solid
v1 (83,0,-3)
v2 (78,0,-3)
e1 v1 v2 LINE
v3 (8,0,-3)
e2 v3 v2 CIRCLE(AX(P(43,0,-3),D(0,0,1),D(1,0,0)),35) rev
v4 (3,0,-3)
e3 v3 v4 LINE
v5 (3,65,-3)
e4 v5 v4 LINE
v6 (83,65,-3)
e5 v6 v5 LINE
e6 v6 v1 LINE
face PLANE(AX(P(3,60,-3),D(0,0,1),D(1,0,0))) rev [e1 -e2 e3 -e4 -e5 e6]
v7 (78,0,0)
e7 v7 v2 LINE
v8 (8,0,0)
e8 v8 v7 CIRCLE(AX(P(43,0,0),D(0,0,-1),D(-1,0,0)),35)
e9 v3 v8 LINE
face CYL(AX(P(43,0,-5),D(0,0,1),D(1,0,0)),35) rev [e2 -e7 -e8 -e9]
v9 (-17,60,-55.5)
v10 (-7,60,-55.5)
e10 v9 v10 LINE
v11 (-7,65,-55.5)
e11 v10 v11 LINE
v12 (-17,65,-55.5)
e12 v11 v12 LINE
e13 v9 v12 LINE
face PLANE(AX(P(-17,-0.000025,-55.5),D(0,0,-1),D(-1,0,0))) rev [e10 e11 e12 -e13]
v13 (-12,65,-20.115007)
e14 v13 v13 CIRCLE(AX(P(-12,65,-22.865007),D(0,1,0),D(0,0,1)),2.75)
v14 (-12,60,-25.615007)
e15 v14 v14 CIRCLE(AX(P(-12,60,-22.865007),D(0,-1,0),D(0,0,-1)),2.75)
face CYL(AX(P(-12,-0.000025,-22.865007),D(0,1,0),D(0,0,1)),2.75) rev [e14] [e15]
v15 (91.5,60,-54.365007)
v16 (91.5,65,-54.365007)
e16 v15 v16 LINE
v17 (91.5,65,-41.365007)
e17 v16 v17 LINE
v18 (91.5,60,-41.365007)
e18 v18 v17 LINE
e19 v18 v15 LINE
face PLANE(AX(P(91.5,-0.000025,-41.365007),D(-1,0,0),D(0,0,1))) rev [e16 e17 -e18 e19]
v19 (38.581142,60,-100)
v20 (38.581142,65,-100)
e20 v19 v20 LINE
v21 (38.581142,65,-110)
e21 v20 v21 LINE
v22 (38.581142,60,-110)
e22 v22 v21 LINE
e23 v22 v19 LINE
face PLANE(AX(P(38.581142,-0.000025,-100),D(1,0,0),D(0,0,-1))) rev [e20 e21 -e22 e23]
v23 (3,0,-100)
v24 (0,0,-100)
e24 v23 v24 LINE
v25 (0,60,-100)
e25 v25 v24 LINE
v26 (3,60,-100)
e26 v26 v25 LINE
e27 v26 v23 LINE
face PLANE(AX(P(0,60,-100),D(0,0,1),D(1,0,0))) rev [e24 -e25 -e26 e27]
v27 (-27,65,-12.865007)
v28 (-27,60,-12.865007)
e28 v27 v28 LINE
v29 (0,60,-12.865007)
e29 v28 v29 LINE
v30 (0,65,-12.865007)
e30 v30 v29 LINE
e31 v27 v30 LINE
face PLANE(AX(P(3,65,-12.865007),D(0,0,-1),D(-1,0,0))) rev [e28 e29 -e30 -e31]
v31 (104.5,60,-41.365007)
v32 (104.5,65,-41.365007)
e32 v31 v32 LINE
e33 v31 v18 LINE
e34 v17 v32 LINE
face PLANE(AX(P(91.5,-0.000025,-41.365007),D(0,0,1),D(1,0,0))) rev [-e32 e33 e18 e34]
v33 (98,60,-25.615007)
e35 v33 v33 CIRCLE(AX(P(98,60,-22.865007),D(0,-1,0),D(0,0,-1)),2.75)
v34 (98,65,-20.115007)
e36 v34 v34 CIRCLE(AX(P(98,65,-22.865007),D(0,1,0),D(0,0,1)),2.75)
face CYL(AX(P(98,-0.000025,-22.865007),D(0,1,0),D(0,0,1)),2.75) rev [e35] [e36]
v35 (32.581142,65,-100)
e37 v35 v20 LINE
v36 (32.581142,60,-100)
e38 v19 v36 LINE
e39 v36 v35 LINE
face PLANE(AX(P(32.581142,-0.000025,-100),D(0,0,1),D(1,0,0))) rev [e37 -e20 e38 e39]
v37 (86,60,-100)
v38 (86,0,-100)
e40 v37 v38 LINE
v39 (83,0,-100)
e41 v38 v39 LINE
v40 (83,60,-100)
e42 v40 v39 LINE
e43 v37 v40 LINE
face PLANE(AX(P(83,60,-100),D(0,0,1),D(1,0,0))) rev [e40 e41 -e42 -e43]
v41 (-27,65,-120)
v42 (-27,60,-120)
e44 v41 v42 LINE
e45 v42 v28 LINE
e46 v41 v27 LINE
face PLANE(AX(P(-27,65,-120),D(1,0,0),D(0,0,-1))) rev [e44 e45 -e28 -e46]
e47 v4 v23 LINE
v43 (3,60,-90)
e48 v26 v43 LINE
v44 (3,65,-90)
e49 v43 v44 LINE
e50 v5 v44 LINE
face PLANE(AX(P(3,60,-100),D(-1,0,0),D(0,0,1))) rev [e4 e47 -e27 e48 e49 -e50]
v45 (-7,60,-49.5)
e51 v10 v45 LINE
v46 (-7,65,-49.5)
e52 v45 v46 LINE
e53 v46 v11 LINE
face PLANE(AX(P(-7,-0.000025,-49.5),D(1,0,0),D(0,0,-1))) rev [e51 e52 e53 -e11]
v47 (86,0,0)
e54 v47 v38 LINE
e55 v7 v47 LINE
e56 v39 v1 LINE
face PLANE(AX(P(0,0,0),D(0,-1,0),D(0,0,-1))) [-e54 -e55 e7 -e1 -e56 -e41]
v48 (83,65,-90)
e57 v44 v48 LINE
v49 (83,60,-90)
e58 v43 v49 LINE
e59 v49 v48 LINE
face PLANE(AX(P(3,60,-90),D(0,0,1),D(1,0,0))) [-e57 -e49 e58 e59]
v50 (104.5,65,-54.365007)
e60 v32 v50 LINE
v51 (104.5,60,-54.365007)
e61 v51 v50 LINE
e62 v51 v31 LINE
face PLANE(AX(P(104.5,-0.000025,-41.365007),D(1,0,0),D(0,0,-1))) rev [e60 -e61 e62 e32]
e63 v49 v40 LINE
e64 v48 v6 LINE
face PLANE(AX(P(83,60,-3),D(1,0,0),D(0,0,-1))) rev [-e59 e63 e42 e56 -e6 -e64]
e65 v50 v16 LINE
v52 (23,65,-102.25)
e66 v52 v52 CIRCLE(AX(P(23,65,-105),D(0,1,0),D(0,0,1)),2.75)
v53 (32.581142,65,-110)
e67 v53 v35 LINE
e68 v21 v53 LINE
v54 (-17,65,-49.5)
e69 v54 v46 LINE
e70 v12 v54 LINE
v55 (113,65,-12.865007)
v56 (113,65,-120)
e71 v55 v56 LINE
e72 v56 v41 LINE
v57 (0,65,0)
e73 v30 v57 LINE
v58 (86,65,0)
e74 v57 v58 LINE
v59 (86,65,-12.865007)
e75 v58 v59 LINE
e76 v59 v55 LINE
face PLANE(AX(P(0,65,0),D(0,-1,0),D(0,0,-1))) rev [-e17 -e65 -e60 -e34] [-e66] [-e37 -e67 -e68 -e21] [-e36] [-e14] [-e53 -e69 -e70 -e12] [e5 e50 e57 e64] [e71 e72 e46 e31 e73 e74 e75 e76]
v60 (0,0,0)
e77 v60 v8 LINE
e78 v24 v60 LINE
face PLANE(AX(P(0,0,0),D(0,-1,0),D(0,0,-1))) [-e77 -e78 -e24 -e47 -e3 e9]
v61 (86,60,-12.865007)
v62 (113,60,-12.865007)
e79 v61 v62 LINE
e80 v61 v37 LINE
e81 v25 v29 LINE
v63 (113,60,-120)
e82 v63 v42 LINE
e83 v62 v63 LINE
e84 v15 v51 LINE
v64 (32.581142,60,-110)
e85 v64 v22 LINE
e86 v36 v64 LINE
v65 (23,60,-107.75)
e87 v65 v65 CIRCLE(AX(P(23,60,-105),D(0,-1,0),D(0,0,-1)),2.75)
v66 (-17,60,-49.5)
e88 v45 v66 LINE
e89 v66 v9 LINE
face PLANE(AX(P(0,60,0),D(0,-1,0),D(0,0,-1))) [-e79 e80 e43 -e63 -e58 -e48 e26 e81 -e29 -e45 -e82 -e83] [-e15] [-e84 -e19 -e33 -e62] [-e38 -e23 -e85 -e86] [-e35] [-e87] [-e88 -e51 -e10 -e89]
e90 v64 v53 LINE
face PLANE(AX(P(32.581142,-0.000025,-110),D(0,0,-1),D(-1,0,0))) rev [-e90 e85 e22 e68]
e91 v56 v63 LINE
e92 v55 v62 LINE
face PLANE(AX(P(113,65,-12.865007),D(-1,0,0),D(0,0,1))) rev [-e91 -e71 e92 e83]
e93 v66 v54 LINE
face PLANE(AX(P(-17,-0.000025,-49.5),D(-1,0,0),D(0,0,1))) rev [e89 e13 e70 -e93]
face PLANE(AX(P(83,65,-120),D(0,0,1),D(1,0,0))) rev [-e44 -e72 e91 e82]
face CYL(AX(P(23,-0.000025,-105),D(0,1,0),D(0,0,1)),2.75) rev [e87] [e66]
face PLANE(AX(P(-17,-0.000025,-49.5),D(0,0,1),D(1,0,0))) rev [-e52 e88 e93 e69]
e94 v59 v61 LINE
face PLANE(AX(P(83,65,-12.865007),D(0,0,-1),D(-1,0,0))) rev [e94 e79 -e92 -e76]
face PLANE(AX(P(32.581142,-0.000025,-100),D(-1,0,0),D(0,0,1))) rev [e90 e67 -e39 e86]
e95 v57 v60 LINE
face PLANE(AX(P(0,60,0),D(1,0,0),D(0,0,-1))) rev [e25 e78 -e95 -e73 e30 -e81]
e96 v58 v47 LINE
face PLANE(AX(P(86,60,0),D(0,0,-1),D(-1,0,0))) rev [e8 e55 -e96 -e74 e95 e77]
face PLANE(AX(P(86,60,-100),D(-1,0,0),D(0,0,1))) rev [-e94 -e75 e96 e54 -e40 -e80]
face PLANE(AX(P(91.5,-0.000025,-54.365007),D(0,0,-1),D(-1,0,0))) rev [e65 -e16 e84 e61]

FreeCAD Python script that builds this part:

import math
import FreeCAD as App
import Part
import Sketcher

V = App.Vector


def add_polygon(sketch, points):
    """Adds a closed chain of lines whose ends are joined by coincident constraints."""
    first, n = sketch.GeometryCount, len(points)
    for a, b in zip(points, points[1:] + points[:1]):
        sketch.addGeometry(Part.LineSegment(App.Vector(*a, 0), App.Vector(*b, 0)), False)
    for i in range(n):
        sketch.addConstraint(Sketcher.Constraint("Coincident", first + i, 2, first + (i + 1) % n, 1))

doc = App.newDocument("Part")
body = doc.addObject("PartDesign::Body", "Body")

# Sketch on XZ plane
sketch1 = body.newObject("Sketcher::SketchObject", "Sketch")
sketch1.AttachmentSupport = (doc.getObject("XZ_Plane"), [""])
sketch1.MapMode = "FlatFace"
add_polygon(sketch1, [(0, -100), (0, 0), (86, 0), (86, -100), (83, -100), (83, -3), (3, -3), (3, -100)])  # lines 0-7
sketch1.addConstraint([
    Sketcher.Constraint("Vertical", 0),
    Sketcher.Constraint("Horizontal", 1),
    Sketcher.Constraint("Vertical", 2),
    Sketcher.Constraint("Horizontal", 3),
    Sketcher.Constraint("Vertical", 4),
    Sketcher.Constraint("Horizontal", 5),
    Sketcher.Constraint("Vertical", 6),
    Sketcher.Constraint("Horizontal", 7),
    Sketcher.Constraint("Coincident", 0, 2, -1, 1),
    Sketcher.Constraint("Horizontal", 3, 2, 6, 2),
    Sketcher.Constraint("Equal", 3, 7),
    Sketcher.Constraint("DistanceX", 1, 1, 1, 2, 86.0),
    Sketcher.Constraint("DistanceX", 3, 2, 3, 1, 3.0),
    Sketcher.Constraint("DistanceY", 0, 1, 0, 2, 100.0),
    Sketcher.Constraint("DistanceY", 4, 1, 4, 2, 97.0),
])
pad1 = body.newObject("PartDesign::Pad", "Pad")
pad1.Profile = sketch1
pad1.Length = 60
pad1.Reversed = True

# Sketch on XZ plane
sketch2 = body.newObject("Sketcher::SketchObject", "Sketch001")
sketch2.AttachmentSupport = (doc.getObject("XZ_Plane"), [""])
sketch2.MapMode = "FlatFace"
sketch2.AttachmentOffset = App.Placement(V(0, 0, -60), App.Rotation())
add_polygon(sketch2, [(83, -120), (83, -13), (113, -13), (113, -120)])  # lines 0-3
add_polygon(sketch2, [(-27, -120), (-27, -13), (3, -13), (3, -120)])  # lines 4-7
sketch2.addConstraint([
    Sketcher.Constraint("Vertical", 0),
    Sketcher.Constraint("Horizontal", 1),
    Sketcher.Constraint("Vertical", 2),
    Sketcher.Constraint("Horizontal", 3),
    Sketcher.Constraint("Vertical", 4),
    Sketcher.Constraint("Horizontal", 5),
    Sketcher.Constraint("Vertical", 6),
    Sketcher.Constraint("Horizontal", 7),
    Sketcher.Constraint("Horizontal", 1, 2, 4, 2),
    Sketcher.Constraint("Horizontal", 3, 2, 6, 2),
    Sketcher.Constraint("Equal", 3, 5),
    Sketcher.Constraint("DistanceX", 1, 1, 1, 2, 30.0),
    Sketcher.Constraint("DistanceX", -1, 1, 0, 2, 83.0),
    Sketcher.Constraint("DistanceY", 2, 2, -1, 1, 120.0),
    Sketcher.Constraint("DistanceX", 4, 2, -1, 1, 27.0),
    Sketcher.Constraint("DistanceY", 0, 1, 0, 2, 107.134993),
])
pad2 = body.newObject("PartDesign::Pad", "Pad001")
pad2.Profile = sketch2
pad2.Length = 5
pad2.Reversed = True

# Sketch on XZ plane
sketch3 = body.newObject("Sketcher::SketchObject", "Sketch002")
sketch3.AttachmentSupport = (doc.getObject("XZ_Plane"), [""])
sketch3.MapMode = "FlatFace"
sketch3.AttachmentOffset = App.Placement(V(0, 0, -65), App.Rotation())
add_polygon(sketch3, [(3, -120), (3, -90), (83, -90), (83, -120)])  # lines 0-3
sketch3.addConstraint([
    Sketcher.Constraint("Vertical", 0),
    Sketcher.Constraint("Horizontal", 1),
    Sketcher.Constraint("Vertical", 2),
    Sketcher.Constraint("Horizontal", 3),
    Sketcher.Constraint("DistanceX", 1, 1, 1, 2, 80.0),
    Sketcher.Constraint("DistanceY", 0, 1, 0, 2, 30.0),
    Sketcher.Constraint("DistanceX", -1, 1, 0, 2, 3.0),
    Sketcher.Constraint("DistanceY", 0, 2, -1, 1, 90.0),
])
pad3 = body.newObject("PartDesign::Pad", "Pad002")
pad3.Profile = sketch3
pad3.Length = 5

# Sketch on XZ plane
sketch4 = body.newObject("Sketcher::SketchObject", "Sketch003")
sketch4.AttachmentSupport = (doc.getObject("XZ_Plane"), [""])
sketch4.MapMode = "FlatFace"
sketch4.AttachmentOffset = App.Placement(V(0, 0, -60), App.Rotation())
add_polygon(sketch4, [(0, -12.9), (0, 0), (86, 0), (86, -12.9), (83, -12.9), (83, -3), (3, -3), (3, -12.9)])  # lines 0-7
sketch4.addConstraint([
    Sketcher.Constraint("Vertical", 0),
    Sketcher.Constraint("Horizontal", 1),
    Sketcher.Constraint("Vertical", 2),
    Sketcher.Constraint("Horizontal", 3),
    Sketcher.Constraint("Vertical", 4),
    Sketcher.Constraint("Horizontal", 5),
    Sketcher.Constraint("Vertical", 6),
    Sketcher.Constraint("Horizontal", 7),
    Sketcher.Constraint("Coincident", 0, 2, -1, 1),
    Sketcher.Constraint("Horizontal", 3, 2, 6, 2),
    Sketcher.Constraint("Equal", 3, 7),
    Sketcher.Constraint("DistanceX", 1, 1, 1, 2, 86.0),
    Sketcher.Constraint("DistanceX", 3, 2, 3, 1, 3.0),
    Sketcher.Constraint("DistanceY", 4, 2, -1, 1, 3.0),
    Sketcher.Constraint("DistanceY", 0, 1, 0, 2, 12.865007),
])
pad4 = body.newObject("PartDesign::Pad", "Pad003")
pad4.Profile = sketch4
pad4.Length = 5
pad4.Reversed = True

# Sketch on XY plane
sketch5 = body.newObject("Sketcher::SketchObject", "Sketch004")
sketch5.AttachmentSupport = (doc.getObject("XY_Plane"), [""])
sketch5.MapMode = "FlatFace"
sketch5.addGeometry([
    Part.LineSegment(V(8, 0, 0), V(78, 0, 0)),
    Part.ArcOfCircle(Part.Circle(V(43, 0, 0), V(0, 0, 1), 35), math.radians(0), math.radians(180)),
], False)
sketch5.addConstraint([
    Sketcher.Constraint("Coincident", 0, 1, 1, 2),
    Sketcher.Constraint("Coincident", 1, 1, 0, 2),
    Sketcher.Constraint("Horizontal", 0),
    Sketcher.Constraint("PointOnObject", 1, 3, -1),
    Sketcher.Constraint("PointOnObject", 0, 1, -1),
    Sketcher.Constraint("Radius", 1, 35.0),
    Sketcher.Constraint("DistanceX", -1, 1, 1, 3, 43.0),
])
pocket1 = body.newObject("PartDesign::Pocket", "Pocket")
pocket1.Profile = sketch5
pocket1.Length = 5

# Sketch on XZ plane
sketch6 = body.newObject("Sketcher::SketchObject", "Sketch005")
sketch6.AttachmentSupport = (doc.getObject("XZ_Plane"), [""])
sketch6.MapMode = "FlatFace"
sketch6.AttachmentOffset = App.Placement(V(0, 0, -65), App.Rotation())
sketch6.addGeometry([
    Part.Circle(V(-12, -22.9, 0), V(0, 0, 1), 2.8),
    Part.Circle(V(23, -105, 0), V(0, 0, 1), 2.8),
    Part.Circle(V(98, -22.9, 0), V(0, 0, 1), 2.8),
], False)
sketch6.addConstraint([
    Sketcher.Constraint("Equal", 0, 1),
    Sketcher.Constraint("Equal", 1, 2),
    Sketcher.Constraint("Horizontal", 0, 3, 2, 3),
    Sketcher.Constraint("Diameter", 0, 5.5),
    Sketcher.Constraint("DistanceX", 0, 3, -1, 1, 12.0),
    Sketcher.Constraint("DistanceX", -1, 1, 1, 3, 23.0),
    Sketcher.Constraint("DistanceY", 1, 3, -1, 1, 105.0),
    Sketcher.Constraint("DistanceX", -1, 1, 2, 3, 98.0),
    Sketcher.Constraint("DistanceY", 0, 3, -1, 1, 22.865007),
])
pocket2 = body.newObject("PartDesign::Pocket", "Pocket001")
pocket2.Profile = sketch6
pocket2.Type = "ThroughAll"
pocket2.Reversed = True

# Sketch on XZ plane
sketch7 = body.newObject("Sketcher::SketchObject", "Sketch006")
sketch7.AttachmentSupport = (doc.getObject("XZ_Plane"), [""])
sketch7.MapMode = "FlatFace"
sketch7.AttachmentOffset = App.Placement(V(0, 0, -65), App.Rotation())
add_polygon(sketch7, [(-17, -55), (-17, -49), (-7, -49), (-7, -55)])  # lines 0-3
add_polygon(sketch7, [(33, -110), (33, -100), (39, -100), (39, -110)])  # lines 4-7
sketch7.addConstraint([
    Sketcher.Constraint("Vertical", 0),
    Sketcher.Constraint("Horizontal", 1),
    Sketcher.Constraint("Vertical", 2),
    Sketcher.Constraint("Horizontal", 3),
    Sketcher.Constraint("Vertical", 4),
    Sketcher.Constraint("Horizontal", 5),
    Sketcher.Constraint("Vertical", 6),
    Sketcher.Constraint("Horizontal", 7),
    Sketcher.Constraint("Equal", 7, 0),
    Sketcher.Constraint("Equal", 3, 4),
    Sketcher.Constraint("DistanceX", 1, 1, 1, 2, 10.0),
    Sketcher.Constraint("DistanceX", 5, 1, 5, 2, 6.0),
    Sketcher.Constraint("DistanceX", 0, 2, -1, 1, 17.0),
    Sketcher.Constraint("DistanceY", 4, 2, -1, 1, 100.0),
    Sketcher.Constraint("DistanceY", 0, 2, -1, 1, 49.5),
    Sketcher.Constraint("DistanceX", -1, 1, 4, 2, 32.581142),
])
pocket3 = body.newObject("PartDesign::Pocket", "Pocket002")
pocket3.Profile = sketch7
pocket3.Type = "ThroughAll"
pocket3.Reversed = True

# Sketch on XZ plane
sketch8 = body.newObject("Sketcher::SketchObject", "Sketch007")
sketch8.AttachmentSupport = (doc.getObject("XZ_Plane"), [""])
sketch8.MapMode = "FlatFace"
sketch8.AttachmentOffset = App.Placement(V(0, 0, -65), App.Rotation())
add_polygon(sketch8, [(92, -54), (92, -41), (104, -41), (104, -54)])  # lines 0-3
sketch8.addConstraint([
    Sketcher.Constraint("Vertical", 0),
    Sketcher.Constraint("Horizontal", 1),
    Sketcher.Constraint("Vertical", 2),
    Sketcher.Constraint("Horizontal", 3),
    Sketcher.Constraint("Equal", 3, 0),
    Sketcher.Constraint("DistanceX", 1, 1, 1, 2, 13.0),
    Sketcher.Constraint("DistanceX", -1, 1, 0, 2, 91.5),
    Sketcher.Constraint("DistanceY", 0, 2, -1, 1, 41.365007),
])
pocket4 = body.newObject("PartDesign::Pocket", "Pocket003")
pocket4.Profile = sketch8
pocket4.Type = "ThroughAll"
pocket4.Reversed = True

doc.recompute()
